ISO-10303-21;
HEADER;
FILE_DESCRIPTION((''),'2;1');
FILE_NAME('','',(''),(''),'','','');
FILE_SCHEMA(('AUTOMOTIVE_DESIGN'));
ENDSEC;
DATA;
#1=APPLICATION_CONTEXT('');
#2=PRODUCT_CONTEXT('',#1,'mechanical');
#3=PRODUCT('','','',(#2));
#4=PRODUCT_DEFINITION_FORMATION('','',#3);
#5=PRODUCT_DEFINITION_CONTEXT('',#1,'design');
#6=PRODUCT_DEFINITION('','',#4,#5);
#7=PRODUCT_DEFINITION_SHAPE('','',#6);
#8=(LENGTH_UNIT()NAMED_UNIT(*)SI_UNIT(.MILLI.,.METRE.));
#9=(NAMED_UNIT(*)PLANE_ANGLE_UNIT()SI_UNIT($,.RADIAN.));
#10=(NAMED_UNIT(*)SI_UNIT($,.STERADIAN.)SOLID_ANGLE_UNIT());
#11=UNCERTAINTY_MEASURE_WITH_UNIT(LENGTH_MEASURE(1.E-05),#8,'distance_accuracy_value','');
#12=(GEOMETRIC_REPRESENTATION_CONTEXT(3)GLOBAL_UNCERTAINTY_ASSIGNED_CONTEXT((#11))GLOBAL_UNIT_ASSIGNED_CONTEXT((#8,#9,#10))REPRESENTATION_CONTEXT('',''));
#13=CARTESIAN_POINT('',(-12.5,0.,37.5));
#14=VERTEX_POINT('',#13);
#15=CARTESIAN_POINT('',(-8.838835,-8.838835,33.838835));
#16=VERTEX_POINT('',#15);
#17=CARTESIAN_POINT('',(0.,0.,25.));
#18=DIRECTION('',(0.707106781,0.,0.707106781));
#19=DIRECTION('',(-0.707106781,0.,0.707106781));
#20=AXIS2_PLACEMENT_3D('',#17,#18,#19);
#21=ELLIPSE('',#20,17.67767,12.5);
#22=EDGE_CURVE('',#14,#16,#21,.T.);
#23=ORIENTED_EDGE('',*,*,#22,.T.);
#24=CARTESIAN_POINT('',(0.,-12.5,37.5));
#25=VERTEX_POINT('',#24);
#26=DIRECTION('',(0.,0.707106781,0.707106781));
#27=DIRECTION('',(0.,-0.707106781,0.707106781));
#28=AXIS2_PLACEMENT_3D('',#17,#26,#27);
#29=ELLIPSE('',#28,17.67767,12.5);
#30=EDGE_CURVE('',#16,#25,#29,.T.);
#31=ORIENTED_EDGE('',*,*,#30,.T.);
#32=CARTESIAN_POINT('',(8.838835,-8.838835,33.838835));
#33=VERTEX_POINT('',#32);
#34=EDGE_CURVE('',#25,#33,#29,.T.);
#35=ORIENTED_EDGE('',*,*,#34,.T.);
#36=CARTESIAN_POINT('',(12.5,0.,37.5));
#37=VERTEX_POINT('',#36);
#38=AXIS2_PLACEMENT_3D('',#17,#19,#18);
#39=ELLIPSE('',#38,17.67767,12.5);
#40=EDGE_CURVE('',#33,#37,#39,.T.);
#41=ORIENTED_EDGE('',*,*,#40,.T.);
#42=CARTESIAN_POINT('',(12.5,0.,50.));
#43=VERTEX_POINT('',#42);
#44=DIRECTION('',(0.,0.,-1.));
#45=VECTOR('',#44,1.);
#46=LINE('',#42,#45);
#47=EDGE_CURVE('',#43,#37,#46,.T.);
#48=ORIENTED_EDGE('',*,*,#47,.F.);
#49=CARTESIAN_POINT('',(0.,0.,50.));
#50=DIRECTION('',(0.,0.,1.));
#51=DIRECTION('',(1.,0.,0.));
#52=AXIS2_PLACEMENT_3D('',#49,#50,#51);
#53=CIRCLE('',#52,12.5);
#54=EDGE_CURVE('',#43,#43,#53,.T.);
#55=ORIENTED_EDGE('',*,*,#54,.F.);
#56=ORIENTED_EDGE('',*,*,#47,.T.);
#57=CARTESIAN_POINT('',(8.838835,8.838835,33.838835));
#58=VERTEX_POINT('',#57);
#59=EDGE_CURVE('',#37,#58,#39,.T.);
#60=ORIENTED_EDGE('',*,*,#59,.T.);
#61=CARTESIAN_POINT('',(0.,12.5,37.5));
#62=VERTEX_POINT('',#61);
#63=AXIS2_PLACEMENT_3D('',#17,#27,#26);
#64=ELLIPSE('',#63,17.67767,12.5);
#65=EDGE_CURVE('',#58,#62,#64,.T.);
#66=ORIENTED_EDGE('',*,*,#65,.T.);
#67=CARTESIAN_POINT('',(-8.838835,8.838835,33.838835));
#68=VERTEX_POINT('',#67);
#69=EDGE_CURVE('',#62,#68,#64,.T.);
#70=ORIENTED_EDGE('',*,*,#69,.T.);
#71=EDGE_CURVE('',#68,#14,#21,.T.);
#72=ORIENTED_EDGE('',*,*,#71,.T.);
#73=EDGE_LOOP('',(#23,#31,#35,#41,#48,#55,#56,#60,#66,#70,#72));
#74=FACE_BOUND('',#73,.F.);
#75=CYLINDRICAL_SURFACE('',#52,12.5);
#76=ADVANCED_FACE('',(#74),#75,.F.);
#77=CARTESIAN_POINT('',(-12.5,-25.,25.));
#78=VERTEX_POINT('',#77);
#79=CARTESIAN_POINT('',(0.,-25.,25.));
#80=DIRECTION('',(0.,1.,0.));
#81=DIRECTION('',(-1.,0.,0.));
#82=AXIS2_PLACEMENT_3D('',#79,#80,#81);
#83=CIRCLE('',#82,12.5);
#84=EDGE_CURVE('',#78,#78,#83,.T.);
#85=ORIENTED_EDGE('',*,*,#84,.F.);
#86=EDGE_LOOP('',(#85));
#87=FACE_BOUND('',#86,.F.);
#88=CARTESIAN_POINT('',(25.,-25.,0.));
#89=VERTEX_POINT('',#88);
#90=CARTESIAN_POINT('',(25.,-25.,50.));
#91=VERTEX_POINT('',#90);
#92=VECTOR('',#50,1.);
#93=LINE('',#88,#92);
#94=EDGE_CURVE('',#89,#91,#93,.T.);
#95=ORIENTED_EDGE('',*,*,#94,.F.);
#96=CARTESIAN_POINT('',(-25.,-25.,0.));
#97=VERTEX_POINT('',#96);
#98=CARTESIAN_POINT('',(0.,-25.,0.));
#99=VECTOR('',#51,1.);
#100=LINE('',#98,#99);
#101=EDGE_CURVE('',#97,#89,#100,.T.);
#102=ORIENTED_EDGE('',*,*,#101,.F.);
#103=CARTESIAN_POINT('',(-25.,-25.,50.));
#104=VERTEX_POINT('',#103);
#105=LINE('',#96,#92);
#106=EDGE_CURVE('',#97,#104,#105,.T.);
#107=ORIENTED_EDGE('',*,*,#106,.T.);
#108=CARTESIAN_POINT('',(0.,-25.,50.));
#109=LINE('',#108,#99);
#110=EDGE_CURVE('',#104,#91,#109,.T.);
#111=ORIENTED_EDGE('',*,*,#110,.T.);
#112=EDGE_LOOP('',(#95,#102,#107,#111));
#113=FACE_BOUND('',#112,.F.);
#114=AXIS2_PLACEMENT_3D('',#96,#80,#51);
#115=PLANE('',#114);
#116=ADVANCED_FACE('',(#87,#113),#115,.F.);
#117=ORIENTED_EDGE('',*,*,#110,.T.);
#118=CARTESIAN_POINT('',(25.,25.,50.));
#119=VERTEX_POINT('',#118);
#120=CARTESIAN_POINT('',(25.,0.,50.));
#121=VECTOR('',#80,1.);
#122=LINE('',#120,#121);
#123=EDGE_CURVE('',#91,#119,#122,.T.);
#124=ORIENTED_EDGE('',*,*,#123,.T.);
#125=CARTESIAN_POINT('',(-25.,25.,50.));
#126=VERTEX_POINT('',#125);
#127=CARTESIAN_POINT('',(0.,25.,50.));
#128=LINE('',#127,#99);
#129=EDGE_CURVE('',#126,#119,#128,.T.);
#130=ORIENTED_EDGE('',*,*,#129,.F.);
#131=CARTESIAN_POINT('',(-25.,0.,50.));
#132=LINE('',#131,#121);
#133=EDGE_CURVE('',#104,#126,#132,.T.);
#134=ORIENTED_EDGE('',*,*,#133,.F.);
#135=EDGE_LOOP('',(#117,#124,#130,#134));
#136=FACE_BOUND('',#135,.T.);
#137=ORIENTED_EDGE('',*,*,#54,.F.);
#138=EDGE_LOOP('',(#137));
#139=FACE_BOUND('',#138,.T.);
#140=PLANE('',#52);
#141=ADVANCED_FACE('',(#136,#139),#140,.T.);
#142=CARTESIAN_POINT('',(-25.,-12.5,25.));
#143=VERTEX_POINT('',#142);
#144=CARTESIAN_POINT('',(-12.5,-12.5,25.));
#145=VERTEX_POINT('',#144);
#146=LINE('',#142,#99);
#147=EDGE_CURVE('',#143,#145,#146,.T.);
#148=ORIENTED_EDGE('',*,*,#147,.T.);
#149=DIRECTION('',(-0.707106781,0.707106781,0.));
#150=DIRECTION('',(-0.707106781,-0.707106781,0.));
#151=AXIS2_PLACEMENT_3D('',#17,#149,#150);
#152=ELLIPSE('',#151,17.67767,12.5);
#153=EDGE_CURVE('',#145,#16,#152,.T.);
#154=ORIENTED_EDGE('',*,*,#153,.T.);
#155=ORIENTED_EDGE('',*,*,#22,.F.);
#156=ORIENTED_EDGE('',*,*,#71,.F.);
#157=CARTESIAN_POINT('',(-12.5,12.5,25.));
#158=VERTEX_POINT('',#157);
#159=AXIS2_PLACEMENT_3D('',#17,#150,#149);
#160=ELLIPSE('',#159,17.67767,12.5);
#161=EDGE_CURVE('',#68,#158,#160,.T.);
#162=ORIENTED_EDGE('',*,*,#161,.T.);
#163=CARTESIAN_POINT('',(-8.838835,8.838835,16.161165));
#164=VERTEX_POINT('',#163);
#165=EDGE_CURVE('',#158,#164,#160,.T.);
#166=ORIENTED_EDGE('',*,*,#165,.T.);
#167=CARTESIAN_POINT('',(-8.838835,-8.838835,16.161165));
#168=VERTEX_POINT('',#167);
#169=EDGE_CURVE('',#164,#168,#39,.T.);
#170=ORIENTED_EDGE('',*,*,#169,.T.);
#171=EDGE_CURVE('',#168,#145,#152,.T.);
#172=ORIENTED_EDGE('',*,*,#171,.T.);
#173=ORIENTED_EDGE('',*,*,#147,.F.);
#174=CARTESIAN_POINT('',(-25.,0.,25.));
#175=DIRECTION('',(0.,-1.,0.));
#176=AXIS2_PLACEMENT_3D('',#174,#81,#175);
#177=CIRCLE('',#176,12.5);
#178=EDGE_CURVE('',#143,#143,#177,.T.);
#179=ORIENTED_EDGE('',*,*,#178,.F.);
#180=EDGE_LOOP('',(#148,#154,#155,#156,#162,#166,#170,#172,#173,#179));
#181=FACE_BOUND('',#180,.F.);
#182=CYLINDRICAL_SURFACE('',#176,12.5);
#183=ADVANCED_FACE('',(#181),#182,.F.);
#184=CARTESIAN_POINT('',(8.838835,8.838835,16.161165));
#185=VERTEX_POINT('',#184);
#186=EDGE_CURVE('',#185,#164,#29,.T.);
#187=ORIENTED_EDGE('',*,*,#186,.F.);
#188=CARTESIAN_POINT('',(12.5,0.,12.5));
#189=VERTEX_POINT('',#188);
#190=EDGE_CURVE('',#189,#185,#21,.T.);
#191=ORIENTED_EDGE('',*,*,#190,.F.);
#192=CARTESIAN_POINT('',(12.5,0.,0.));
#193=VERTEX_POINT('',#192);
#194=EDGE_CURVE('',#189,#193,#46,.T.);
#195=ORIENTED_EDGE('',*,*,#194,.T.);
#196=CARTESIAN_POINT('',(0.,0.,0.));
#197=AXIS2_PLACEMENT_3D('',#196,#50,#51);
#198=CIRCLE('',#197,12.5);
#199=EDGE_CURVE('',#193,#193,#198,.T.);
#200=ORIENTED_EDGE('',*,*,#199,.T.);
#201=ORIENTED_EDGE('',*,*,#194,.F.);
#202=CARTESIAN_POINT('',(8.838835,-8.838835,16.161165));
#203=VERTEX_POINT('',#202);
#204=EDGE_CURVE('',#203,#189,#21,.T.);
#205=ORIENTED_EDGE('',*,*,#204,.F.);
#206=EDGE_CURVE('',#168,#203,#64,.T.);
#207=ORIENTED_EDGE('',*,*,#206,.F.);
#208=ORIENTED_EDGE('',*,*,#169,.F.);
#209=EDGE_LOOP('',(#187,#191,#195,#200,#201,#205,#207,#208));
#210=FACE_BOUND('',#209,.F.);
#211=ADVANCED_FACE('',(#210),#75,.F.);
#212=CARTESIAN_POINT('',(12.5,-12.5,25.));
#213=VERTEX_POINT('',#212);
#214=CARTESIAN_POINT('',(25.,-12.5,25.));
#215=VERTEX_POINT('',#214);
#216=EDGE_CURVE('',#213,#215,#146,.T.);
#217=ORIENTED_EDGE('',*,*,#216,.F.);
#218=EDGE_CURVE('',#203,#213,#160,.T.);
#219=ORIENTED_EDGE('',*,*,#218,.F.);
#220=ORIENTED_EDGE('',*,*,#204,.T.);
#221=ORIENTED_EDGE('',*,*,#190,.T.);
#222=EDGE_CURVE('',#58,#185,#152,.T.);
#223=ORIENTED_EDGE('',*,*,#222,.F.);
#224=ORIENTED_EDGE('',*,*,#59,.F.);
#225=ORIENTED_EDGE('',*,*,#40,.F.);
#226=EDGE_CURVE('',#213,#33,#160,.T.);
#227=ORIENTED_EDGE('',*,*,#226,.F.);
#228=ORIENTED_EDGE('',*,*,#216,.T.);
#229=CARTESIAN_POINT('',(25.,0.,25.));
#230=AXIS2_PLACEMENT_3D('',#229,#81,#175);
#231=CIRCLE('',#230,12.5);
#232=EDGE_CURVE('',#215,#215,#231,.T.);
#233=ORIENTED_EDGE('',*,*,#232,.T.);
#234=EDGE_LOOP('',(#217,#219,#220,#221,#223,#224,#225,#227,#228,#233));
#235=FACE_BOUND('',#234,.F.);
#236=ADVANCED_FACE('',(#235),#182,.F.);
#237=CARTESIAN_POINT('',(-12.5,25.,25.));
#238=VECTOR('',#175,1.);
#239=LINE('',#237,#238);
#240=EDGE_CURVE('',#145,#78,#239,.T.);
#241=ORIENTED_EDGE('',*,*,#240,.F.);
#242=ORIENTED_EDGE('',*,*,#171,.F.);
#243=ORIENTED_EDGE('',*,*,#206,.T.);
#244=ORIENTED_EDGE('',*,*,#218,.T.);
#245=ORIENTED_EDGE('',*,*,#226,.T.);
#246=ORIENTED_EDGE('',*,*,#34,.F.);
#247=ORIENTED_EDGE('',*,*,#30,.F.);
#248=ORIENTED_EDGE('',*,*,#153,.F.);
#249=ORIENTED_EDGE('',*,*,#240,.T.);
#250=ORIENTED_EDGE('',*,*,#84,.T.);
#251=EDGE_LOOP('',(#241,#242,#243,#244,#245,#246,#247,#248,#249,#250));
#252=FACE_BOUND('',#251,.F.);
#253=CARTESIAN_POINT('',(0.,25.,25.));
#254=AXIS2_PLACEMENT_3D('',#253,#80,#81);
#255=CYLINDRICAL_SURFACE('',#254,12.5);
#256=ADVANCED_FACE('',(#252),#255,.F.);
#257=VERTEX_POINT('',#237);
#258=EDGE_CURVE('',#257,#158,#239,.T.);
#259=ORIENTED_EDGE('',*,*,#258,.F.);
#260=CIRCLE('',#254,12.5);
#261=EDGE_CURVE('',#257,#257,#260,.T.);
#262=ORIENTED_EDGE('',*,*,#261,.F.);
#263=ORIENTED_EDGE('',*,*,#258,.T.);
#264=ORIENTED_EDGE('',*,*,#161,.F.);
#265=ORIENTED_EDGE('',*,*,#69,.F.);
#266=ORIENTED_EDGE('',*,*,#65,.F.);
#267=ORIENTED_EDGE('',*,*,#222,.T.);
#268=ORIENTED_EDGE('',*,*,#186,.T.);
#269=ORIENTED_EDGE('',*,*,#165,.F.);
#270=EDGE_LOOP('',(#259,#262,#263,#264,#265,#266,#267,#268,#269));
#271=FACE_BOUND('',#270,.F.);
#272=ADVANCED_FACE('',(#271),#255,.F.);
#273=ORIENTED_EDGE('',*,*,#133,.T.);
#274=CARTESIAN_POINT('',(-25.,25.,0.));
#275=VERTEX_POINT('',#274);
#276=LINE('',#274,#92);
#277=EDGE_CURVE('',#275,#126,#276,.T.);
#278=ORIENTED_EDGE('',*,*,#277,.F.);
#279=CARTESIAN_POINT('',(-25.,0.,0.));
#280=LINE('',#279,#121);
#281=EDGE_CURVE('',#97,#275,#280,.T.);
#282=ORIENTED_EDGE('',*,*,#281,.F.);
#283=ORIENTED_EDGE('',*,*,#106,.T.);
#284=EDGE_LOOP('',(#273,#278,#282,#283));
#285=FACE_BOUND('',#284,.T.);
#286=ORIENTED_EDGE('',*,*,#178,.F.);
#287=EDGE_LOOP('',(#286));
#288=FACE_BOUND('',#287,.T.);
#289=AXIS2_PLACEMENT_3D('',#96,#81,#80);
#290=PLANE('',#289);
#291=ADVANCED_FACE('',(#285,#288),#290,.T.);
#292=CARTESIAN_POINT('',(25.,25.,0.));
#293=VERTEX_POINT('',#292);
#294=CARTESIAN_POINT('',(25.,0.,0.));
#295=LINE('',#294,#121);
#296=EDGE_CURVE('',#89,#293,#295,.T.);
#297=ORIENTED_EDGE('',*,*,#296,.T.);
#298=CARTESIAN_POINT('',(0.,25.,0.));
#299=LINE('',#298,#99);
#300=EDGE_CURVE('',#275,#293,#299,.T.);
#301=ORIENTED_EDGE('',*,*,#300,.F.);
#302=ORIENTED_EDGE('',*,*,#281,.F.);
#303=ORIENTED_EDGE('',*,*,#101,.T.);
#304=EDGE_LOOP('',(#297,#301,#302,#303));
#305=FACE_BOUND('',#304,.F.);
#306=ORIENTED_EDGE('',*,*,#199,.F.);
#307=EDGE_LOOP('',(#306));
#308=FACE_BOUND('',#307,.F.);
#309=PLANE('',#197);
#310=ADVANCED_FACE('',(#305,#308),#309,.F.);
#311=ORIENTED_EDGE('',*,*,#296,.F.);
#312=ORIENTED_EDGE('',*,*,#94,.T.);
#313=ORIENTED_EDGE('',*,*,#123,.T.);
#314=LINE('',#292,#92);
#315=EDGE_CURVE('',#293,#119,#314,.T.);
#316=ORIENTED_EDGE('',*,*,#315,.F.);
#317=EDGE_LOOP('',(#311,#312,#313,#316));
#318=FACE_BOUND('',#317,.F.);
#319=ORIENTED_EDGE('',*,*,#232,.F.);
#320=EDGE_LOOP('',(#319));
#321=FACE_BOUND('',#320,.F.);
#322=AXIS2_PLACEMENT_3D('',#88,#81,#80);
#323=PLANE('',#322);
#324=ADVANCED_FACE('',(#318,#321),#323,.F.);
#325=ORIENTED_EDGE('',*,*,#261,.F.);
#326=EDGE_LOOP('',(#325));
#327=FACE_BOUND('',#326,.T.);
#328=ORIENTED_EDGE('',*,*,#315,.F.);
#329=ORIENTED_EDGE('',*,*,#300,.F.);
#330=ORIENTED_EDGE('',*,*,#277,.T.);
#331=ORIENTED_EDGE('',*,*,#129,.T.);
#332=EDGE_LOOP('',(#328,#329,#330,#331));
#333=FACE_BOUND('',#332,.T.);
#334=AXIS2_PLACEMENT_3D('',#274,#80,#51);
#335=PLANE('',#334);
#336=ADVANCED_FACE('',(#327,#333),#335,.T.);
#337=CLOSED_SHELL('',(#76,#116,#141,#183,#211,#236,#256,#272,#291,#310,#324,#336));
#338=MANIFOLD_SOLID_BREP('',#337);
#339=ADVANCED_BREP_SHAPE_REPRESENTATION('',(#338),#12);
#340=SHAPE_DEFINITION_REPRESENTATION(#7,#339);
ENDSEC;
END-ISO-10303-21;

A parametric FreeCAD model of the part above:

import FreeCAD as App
import Part
import Sketcher
from FreeCAD import Vector
Q = App.Units.Quantity

doc = App.newDocument("Part")
body = doc.addObject("PartDesign::Body", "Body")

# Sketch on XY plane
sketch1 = body.newObject("Sketcher::SketchObject", "Sketch")
sketch1.AttachmentSupport = (doc.getObject("XY_Plane"), [""])
sketch1.MapMode = "FlatFace"
sketch1.addGeometry(Part.LineSegment(Vector(-25, 25, 0), Vector(-25, -25, 0)), False)
sketch1.addGeometry(Part.LineSegment(Vector(-25, -25, 0), Vector(25, -25, 0)), False)
sketch1.addGeometry(Part.LineSegment(Vector(25, -25, 0), Vector(25, 25, 0)), False)
sketch1.addGeometry(Part.LineSegment(Vector(25, 25, 0), Vector(-25, 25, 0)), False)
sketch1.addConstraint(Sketcher.Constraint("Coincident", 0, 2, 1, 1))
sketch1.addConstraint(Sketcher.Constraint("Coincident", 1, 2, 2, 1))
sketch1.addConstraint(Sketcher.Constraint("Coincident", 2, 2, 3, 1))
sketch1.addConstraint(Sketcher.Constraint("Coincident", 3, 2, 0, 1))
sketch1.addConstraint(Sketcher.Constraint("Vertical", 0))
sketch1.addConstraint(Sketcher.Constraint("Horizontal", 1))
sketch1.addConstraint(Sketcher.Constraint("Vertical", 2))
sketch1.addConstraint(Sketcher.Constraint("Horizontal", 3))
sketch1.addConstraint(Sketcher.Constraint("Symmetric", 0, 2, 2, 2, -1, 1))
sketch1.addConstraint(Sketcher.Constraint("Equal", 3, 0))
sketch1.addConstraint(Sketcher.Constraint("DistanceX", 1, 1, 1, 2, Q("50 mm")))
pad1 = body.newObject("PartDesign::Pad", "Pad")
pad1.Profile = sketch1
pad1.Length = 50

# Sketch on XY plane
sketch2 = body.newObject("Sketcher::SketchObject", "Sketch001")
sketch2.AttachmentSupport = (doc.getObject("XY_Plane"), [""])
sketch2.MapMode = "FlatFace"
sketch2.AttachmentOffset = App.Placement(Vector(0, 0, 50), App.Rotation())
sketch2.addGeometry(Part.Circle(Vector(0, 0, 0), Vector(0, 0, 1), 12.5), False)
sketch2.addConstraint(Sketcher.Constraint("Coincident", 0, 3, -1, 1))
sketch2.addConstraint(Sketcher.Constraint("Diameter", 0, Q("25 mm")))
pocket1 = body.newObject("PartDesign::Pocket", "Pocket")
pocket1.Profile = sketch2
pocket1.Length = 50

# Sketch on YZ plane
sketch3 = body.newObject("Sketcher::SketchObject", "Sketch002")
sketch3.AttachmentSupport = (doc.getObject("YZ_Plane"), [""])
sketch3.MapMode = "FlatFace"
sketch3.AttachmentOffset = App.Placement(Vector(0, 0, -25), App.Rotation())
sketch3.addGeometry(Part.Circle(Vector(0, 25, 0), Vector(0, 0, 1), 12.5), False)
sketch3.addConstraint(Sketcher.Constraint("PointOnObject", 0, 3, -2))
sketch3.addConstraint(Sketcher.Constraint("Diameter", 0, Q("25 mm")))
sketch3.addConstraint(Sketcher.Constraint("DistanceY", -1, 1, 0, 3, Q("25 mm")))
pocket2 = body.newObject("PartDesign::Pocket", "Pocket001")
pocket2.Profile = sketch3
pocket2.Length = 50
pocket2.Reversed = True

# Sketch on XZ plane
sketch4 = body.newObject("Sketcher::SketchObject", "Sketch003")
sketch4.AttachmentSupport = (doc.getObject("XZ_Plane"), [""])
sketch4.MapMode = "FlatFace"
sketch4.AttachmentOffset = App.Placement(Vector(0, 0, -25), App.Rotation())
sketch4.addGeometry(Part.Circle(Vector(0, 25, 0), Vector(0, 0, 1), 12.5), False)
sketch4.addConstraint(Sketcher.Constraint("PointOnObject", 0, 3, -2))
sketch4.addConstraint(Sketcher.Constraint("Diameter", 0, Q("25 mm")))
sketch4.addConstraint(Sketcher.Constraint("DistanceY", -1, 1, 0, 3, Q("25 mm")))
pocket3 = body.newObject("PartDesign::Pocket", "Pocket002")
pocket3.Profile = sketch4
pocket3.Length = 50
pocket3.Reversed = True

doc.recompute()
